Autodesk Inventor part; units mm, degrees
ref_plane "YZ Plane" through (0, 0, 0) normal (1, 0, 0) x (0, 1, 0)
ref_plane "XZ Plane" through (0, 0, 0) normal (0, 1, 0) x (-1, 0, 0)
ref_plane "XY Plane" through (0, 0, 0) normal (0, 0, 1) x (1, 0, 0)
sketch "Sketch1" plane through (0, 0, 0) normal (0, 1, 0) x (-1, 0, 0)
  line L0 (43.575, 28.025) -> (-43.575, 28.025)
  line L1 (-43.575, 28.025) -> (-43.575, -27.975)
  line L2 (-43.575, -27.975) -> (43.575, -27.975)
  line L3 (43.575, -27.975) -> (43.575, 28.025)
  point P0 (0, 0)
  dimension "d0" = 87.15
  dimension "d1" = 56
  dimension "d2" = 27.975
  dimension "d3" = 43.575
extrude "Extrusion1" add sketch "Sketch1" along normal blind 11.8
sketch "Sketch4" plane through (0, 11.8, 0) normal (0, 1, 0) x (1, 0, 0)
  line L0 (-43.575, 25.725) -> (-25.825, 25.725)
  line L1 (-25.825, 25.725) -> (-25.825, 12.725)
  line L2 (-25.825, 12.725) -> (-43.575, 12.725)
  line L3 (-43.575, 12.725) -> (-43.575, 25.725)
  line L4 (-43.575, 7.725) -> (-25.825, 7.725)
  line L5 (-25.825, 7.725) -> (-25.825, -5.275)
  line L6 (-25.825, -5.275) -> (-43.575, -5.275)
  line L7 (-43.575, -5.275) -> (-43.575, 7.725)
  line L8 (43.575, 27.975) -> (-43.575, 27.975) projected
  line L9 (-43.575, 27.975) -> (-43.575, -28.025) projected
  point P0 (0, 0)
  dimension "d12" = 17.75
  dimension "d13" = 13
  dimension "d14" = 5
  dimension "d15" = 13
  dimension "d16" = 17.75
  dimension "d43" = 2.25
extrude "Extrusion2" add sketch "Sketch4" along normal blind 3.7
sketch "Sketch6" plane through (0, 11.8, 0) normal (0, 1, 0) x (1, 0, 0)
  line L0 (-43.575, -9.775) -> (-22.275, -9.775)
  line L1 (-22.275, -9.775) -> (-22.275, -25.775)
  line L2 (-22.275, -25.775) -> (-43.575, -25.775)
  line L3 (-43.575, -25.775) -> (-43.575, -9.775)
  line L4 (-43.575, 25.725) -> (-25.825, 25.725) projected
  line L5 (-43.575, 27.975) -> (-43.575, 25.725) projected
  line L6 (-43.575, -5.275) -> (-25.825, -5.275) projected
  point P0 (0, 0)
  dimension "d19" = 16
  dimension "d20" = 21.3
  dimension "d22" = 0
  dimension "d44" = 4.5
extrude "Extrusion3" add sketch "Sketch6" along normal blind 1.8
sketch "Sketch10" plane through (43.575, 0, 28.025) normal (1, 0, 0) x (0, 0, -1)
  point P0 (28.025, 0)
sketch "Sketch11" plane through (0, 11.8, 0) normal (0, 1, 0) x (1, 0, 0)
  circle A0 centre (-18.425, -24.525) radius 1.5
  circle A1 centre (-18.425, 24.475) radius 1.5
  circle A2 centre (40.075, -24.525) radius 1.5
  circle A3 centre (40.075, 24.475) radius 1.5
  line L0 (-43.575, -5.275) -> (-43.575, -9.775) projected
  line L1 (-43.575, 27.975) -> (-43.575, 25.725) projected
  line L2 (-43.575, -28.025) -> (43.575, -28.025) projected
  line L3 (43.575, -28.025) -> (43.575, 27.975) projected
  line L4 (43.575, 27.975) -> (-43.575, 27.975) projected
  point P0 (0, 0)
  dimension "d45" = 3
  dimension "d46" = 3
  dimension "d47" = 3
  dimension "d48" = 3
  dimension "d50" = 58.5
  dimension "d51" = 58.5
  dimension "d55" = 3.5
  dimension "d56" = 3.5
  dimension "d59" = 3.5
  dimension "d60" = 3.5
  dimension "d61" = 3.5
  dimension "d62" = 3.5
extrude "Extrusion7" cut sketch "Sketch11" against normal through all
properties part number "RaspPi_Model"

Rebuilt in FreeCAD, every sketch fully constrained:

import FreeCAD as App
import Part
import Sketcher


def add_polygon(sketch, points):
    """Adds a closed chain of lines whose ends are joined by coincident constraints."""
    first, n = sketch.GeometryCount, len(points)
    for a, b in zip(points, points[1:] + points[:1]):
        sketch.addGeometry(Part.LineSegment(App.Vector(*a, 0), App.Vector(*b, 0)), False)
    for i in range(n):
        sketch.addConstraint(Sketcher.Constraint("Coincident", first + i, 2, first + (i + 1) % n, 1))

doc = App.newDocument("Part")
params = doc.addObject("Spreadsheet::Sheet", "Params")
for row, (alias, value) in enumerate([
    ("sketch1_height", "56 mm"),
    ("sketch1_width", "87.15 mm"),
    ("pad1_length", "11.8 mm"),
    ("sketch2_height", "13 mm"),
    ("sketch2_width", "17.75 mm"),
    ("pad2_length", "3.7 mm"),
    ("sketch3_height", "16 mm"),
    ("sketch3_width", "21.3 mm"),
    ("pad3_length", "1.8 mm"),
    ("sketch4_diameter", "3 mm"),
], start=1):
    params.set(f"A{row}", alias)
    params.set(f"B{row}", "=" + value)
    params.setAlias(f"B{row}", alias)

body = doc.addObject("PartDesign::Body", "Body")

# Sketch on XZ plane
sketch1 = body.newObject("Sketcher::SketchObject", "Sketch")
sketch1.AttachmentSupport = (doc.getObject("XZ_Plane"), [""])
sketch1.MapMode = "FlatFace"
add_polygon(sketch1, [(-43.575, -27.975), (-43.575, 28.025), (43.575, 28.025), (43.575, -27.975)])  # lines 0-3
sketch1.addConstraint(Sketcher.Constraint("Vertical", 0))
sketch1.addConstraint(Sketcher.Constraint("Horizontal", 1))
sketch1.addConstraint(Sketcher.Constraint("Vertical", 2))
sketch1.addConstraint(Sketcher.Constraint("Horizontal", 3))
sketch1.addConstraint(Sketcher.Constraint("DistanceY", 0, 1, 0, 2, 56.0))
sketch1.addConstraint(Sketcher.Constraint("DistanceX", 1, 1, 1, 2, 87.15))
sketch1.addConstraint(Sketcher.Constraint("DistanceX", 0, 2, -1, 1, 43.575))
sketch1.addConstraint(Sketcher.Constraint("DistanceY", 2, 2, -1, 1, 27.975))
sketch1.setExpression("Constraints[8]", "Params.sketch1_height")
sketch1.setExpression("Constraints[9]", "Params.sketch1_width")
pad1 = body.newObject("PartDesign::Pad", "Pad")
pad1.Profile = sketch1
pad1.setExpression("Length", "Params.pad1_length")
pad1.Reversed = True

# Sketch on XZ plane
sketch2 = body.newObject("Sketcher::SketchObject", "Sketch001")
sketch2.AttachmentSupport = (doc.getObject("XZ_Plane"), [""])
sketch2.MapMode = "FlatFace"
sketch2.AttachmentOffset = App.Placement(App.Vector(0, 0, -11.8), App.Rotation())
add_polygon(sketch2, [(-25.825, -7.725), (-43.575, -7.725), (-43.575, 5.275), (-25.825, 5.275)])  # lines 0-3
add_polygon(sketch2, [(-25.825, -25.725), (-43.575, -25.725), (-43.575, -12.725), (-25.825, -12.725)])  # lines 4-7
sketch2.addConstraint(Sketcher.Constraint("Horizontal", 0))
sketch2.addConstraint(Sketcher.Constraint("Vertical", 1))
sketch2.addConstraint(Sketcher.Constraint("Horizontal", 2))
sketch2.addConstraint(Sketcher.Constraint("Vertical", 3))
sketch2.addConstraint(Sketcher.Constraint("Horizontal", 4))
sketch2.addConstraint(Sketcher.Constraint("Vertical", 5))
sketch2.addConstraint(Sketcher.Constraint("Horizontal", 6))
sketch2.addConstraint(Sketcher.Constraint("Vertical", 7))
sketch2.addConstraint(Sketcher.Constraint("Vertical", 1, 2, 4, 2))
sketch2.addConstraint(Sketcher.Constraint("Vertical", 3, 2, 6, 2))
sketch2.addConstraint(Sketcher.Constraint("Equal", 3, 5))
sketch2.addConstraint(Sketcher.Constraint("DistanceY", 1, 1, 1, 2, 13.0))
sketch2.addConstraint(Sketcher.Constraint("DistanceY", 5, 2, 0, 2, 5.0))
sketch2.addConstraint(Sketcher.Constraint("DistanceX", 0, 2, 0, 1, 17.75))
sketch2.addConstraint(Sketcher.Constraint("DistanceX", 0, 2, -1, 1, 43.575))
sketch2.addConstraint(Sketcher.Constraint("DistanceY", 0, 2, -1, 1, 7.725))
sketch2.setExpression("Constraints[19]", "Params.sketch2_height")
sketch2.setExpression("Constraints[21]", "Params.sketch2_width")
pad2 = body.newObject("PartDesign::Pad", "Pad001")
pad2.Profile = sketch2
pad2.setExpression("Length", "Params.pad2_length")
pad2.Reversed = True

# Sketch on XZ plane
sketch3 = body.newObject("Sketcher::SketchObject", "Sketch002")
sketch3.AttachmentSupport = (doc.getObject("XZ_Plane"), [""])
sketch3.MapMode = "FlatFace"
sketch3.AttachmentOffset = App.Placement(App.Vector(0, 0, -11.8), App.Rotation())
add_polygon(sketch3, [(-22.275, 9.775), (-43.575, 9.775), (-43.575, 25.775), (-22.275, 25.775)])  # lines 0-3
sketch3.addConstraint(Sketcher.Constraint("Horizontal", 0))
sketch3.addConstraint(Sketcher.Constraint("Vertical", 1))
sketch3.addConstraint(Sketcher.Constraint("Horizontal", 2))
sketch3.addConstraint(Sketcher.Constraint("Vertical", 3))
sketch3.addConstraint(Sketcher.Constraint("DistanceY", 1, 1, 1, 2, 16.0))
sketch3.addConstraint(Sketcher.Constraint("DistanceX", 0, 2, 0, 1, 21.3))
sketch3.addConstraint(Sketcher.Constraint("DistanceX", 0, 2, -1, 1, 43.575))
sketch3.addConstraint(Sketcher.Constraint("DistanceY", -1, 1, 0, 2, 9.775))
sketch3.setExpression("Constraints[8]", "Params.sketch3_height")
sketch3.setExpression("Constraints[9]", "Params.sketch3_width")
pad3 = body.newObject("PartDesign::Pad", "Pad002")
pad3.Profile = sketch3
pad3.setExpression("Length", "Params.pad3_length")
pad3.Reversed = True

# Sketch on XZ plane
sketch4 = body.newObject("Sketcher::SketchObject", "Sketch003")
sketch4.AttachmentSupport = (doc.getObject("XZ_Plane"), [""])
sketch4.MapMode = "FlatFace"
sketch4.AttachmentOffset = App.Placement(App.Vector(0, 0, -11.8), App.Rotation())
sketch4.addGeometry(Part.Circle(App.Vector(-18.425, 24.525, 0), App.Vector(0, 0, 1), 1.5), False)
sketch4.addGeometry(Part.Circle(App.Vector(-18.425, -24.475, 0), App.Vector(0, 0, 1), 1.5), False)
sketch4.addGeometry(Part.Circle(App.Vector(40.075, 24.525, 0), App.Vector(0, 0, 1), 1.5), False)
sketch4.addGeometry(Part.Circle(App.Vector(40.075, -24.475, 0), App.Vector(0, 0, 1), 1.5), False)
sketch4.addConstraint(Sketcher.Constraint("Equal", 0, 1))
sketch4.addConstraint(Sketcher.Constraint("Equal", 1, 2))
sketch4.addConstraint(Sketcher.Constraint("Equal", 2, 3))
sketch4.addConstraint(Sketcher.Constraint("Horizontal", 0, 3, 2, 3))
sketch4.addConstraint(Sketcher.Constraint("Horizontal", 1, 3, 3, 3))
sketch4.addConstraint(Sketcher.Constraint("Vertical", 0, 3, 1, 3))
sketch4.addConstraint(Sketcher.Constraint("Vertical", 2, 3, 3, 3))
sketch4.addConstraint(Sketcher.Constraint("Diameter", 0, 3.0))
sketch4.addConstraint(Sketcher.Constraint("DistanceX", 0, 3, 2, 3, 58.5))
sketch4.addConstraint(Sketcher.Constraint("DistanceY", 1, 3, 0, 3, 49.0))
sketch4.addConstraint(Sketcher.Constraint("DistanceX", 0, 3, -1, 1, 18.425))
sketch4.addConstraint(Sketcher.Constraint("DistanceY", -1, 1, 0, 3, 24.525))
sketch4.setExpression("Constraints[7]", "Params.sketch4_diameter")
pocket1 = body.newObject("PartDesign::Pocket", "Pocket")
pocket1.Profile = sketch4
pocket1.Type = "ThroughAll"
pocket1.Reversed = True

doc.recompute()
